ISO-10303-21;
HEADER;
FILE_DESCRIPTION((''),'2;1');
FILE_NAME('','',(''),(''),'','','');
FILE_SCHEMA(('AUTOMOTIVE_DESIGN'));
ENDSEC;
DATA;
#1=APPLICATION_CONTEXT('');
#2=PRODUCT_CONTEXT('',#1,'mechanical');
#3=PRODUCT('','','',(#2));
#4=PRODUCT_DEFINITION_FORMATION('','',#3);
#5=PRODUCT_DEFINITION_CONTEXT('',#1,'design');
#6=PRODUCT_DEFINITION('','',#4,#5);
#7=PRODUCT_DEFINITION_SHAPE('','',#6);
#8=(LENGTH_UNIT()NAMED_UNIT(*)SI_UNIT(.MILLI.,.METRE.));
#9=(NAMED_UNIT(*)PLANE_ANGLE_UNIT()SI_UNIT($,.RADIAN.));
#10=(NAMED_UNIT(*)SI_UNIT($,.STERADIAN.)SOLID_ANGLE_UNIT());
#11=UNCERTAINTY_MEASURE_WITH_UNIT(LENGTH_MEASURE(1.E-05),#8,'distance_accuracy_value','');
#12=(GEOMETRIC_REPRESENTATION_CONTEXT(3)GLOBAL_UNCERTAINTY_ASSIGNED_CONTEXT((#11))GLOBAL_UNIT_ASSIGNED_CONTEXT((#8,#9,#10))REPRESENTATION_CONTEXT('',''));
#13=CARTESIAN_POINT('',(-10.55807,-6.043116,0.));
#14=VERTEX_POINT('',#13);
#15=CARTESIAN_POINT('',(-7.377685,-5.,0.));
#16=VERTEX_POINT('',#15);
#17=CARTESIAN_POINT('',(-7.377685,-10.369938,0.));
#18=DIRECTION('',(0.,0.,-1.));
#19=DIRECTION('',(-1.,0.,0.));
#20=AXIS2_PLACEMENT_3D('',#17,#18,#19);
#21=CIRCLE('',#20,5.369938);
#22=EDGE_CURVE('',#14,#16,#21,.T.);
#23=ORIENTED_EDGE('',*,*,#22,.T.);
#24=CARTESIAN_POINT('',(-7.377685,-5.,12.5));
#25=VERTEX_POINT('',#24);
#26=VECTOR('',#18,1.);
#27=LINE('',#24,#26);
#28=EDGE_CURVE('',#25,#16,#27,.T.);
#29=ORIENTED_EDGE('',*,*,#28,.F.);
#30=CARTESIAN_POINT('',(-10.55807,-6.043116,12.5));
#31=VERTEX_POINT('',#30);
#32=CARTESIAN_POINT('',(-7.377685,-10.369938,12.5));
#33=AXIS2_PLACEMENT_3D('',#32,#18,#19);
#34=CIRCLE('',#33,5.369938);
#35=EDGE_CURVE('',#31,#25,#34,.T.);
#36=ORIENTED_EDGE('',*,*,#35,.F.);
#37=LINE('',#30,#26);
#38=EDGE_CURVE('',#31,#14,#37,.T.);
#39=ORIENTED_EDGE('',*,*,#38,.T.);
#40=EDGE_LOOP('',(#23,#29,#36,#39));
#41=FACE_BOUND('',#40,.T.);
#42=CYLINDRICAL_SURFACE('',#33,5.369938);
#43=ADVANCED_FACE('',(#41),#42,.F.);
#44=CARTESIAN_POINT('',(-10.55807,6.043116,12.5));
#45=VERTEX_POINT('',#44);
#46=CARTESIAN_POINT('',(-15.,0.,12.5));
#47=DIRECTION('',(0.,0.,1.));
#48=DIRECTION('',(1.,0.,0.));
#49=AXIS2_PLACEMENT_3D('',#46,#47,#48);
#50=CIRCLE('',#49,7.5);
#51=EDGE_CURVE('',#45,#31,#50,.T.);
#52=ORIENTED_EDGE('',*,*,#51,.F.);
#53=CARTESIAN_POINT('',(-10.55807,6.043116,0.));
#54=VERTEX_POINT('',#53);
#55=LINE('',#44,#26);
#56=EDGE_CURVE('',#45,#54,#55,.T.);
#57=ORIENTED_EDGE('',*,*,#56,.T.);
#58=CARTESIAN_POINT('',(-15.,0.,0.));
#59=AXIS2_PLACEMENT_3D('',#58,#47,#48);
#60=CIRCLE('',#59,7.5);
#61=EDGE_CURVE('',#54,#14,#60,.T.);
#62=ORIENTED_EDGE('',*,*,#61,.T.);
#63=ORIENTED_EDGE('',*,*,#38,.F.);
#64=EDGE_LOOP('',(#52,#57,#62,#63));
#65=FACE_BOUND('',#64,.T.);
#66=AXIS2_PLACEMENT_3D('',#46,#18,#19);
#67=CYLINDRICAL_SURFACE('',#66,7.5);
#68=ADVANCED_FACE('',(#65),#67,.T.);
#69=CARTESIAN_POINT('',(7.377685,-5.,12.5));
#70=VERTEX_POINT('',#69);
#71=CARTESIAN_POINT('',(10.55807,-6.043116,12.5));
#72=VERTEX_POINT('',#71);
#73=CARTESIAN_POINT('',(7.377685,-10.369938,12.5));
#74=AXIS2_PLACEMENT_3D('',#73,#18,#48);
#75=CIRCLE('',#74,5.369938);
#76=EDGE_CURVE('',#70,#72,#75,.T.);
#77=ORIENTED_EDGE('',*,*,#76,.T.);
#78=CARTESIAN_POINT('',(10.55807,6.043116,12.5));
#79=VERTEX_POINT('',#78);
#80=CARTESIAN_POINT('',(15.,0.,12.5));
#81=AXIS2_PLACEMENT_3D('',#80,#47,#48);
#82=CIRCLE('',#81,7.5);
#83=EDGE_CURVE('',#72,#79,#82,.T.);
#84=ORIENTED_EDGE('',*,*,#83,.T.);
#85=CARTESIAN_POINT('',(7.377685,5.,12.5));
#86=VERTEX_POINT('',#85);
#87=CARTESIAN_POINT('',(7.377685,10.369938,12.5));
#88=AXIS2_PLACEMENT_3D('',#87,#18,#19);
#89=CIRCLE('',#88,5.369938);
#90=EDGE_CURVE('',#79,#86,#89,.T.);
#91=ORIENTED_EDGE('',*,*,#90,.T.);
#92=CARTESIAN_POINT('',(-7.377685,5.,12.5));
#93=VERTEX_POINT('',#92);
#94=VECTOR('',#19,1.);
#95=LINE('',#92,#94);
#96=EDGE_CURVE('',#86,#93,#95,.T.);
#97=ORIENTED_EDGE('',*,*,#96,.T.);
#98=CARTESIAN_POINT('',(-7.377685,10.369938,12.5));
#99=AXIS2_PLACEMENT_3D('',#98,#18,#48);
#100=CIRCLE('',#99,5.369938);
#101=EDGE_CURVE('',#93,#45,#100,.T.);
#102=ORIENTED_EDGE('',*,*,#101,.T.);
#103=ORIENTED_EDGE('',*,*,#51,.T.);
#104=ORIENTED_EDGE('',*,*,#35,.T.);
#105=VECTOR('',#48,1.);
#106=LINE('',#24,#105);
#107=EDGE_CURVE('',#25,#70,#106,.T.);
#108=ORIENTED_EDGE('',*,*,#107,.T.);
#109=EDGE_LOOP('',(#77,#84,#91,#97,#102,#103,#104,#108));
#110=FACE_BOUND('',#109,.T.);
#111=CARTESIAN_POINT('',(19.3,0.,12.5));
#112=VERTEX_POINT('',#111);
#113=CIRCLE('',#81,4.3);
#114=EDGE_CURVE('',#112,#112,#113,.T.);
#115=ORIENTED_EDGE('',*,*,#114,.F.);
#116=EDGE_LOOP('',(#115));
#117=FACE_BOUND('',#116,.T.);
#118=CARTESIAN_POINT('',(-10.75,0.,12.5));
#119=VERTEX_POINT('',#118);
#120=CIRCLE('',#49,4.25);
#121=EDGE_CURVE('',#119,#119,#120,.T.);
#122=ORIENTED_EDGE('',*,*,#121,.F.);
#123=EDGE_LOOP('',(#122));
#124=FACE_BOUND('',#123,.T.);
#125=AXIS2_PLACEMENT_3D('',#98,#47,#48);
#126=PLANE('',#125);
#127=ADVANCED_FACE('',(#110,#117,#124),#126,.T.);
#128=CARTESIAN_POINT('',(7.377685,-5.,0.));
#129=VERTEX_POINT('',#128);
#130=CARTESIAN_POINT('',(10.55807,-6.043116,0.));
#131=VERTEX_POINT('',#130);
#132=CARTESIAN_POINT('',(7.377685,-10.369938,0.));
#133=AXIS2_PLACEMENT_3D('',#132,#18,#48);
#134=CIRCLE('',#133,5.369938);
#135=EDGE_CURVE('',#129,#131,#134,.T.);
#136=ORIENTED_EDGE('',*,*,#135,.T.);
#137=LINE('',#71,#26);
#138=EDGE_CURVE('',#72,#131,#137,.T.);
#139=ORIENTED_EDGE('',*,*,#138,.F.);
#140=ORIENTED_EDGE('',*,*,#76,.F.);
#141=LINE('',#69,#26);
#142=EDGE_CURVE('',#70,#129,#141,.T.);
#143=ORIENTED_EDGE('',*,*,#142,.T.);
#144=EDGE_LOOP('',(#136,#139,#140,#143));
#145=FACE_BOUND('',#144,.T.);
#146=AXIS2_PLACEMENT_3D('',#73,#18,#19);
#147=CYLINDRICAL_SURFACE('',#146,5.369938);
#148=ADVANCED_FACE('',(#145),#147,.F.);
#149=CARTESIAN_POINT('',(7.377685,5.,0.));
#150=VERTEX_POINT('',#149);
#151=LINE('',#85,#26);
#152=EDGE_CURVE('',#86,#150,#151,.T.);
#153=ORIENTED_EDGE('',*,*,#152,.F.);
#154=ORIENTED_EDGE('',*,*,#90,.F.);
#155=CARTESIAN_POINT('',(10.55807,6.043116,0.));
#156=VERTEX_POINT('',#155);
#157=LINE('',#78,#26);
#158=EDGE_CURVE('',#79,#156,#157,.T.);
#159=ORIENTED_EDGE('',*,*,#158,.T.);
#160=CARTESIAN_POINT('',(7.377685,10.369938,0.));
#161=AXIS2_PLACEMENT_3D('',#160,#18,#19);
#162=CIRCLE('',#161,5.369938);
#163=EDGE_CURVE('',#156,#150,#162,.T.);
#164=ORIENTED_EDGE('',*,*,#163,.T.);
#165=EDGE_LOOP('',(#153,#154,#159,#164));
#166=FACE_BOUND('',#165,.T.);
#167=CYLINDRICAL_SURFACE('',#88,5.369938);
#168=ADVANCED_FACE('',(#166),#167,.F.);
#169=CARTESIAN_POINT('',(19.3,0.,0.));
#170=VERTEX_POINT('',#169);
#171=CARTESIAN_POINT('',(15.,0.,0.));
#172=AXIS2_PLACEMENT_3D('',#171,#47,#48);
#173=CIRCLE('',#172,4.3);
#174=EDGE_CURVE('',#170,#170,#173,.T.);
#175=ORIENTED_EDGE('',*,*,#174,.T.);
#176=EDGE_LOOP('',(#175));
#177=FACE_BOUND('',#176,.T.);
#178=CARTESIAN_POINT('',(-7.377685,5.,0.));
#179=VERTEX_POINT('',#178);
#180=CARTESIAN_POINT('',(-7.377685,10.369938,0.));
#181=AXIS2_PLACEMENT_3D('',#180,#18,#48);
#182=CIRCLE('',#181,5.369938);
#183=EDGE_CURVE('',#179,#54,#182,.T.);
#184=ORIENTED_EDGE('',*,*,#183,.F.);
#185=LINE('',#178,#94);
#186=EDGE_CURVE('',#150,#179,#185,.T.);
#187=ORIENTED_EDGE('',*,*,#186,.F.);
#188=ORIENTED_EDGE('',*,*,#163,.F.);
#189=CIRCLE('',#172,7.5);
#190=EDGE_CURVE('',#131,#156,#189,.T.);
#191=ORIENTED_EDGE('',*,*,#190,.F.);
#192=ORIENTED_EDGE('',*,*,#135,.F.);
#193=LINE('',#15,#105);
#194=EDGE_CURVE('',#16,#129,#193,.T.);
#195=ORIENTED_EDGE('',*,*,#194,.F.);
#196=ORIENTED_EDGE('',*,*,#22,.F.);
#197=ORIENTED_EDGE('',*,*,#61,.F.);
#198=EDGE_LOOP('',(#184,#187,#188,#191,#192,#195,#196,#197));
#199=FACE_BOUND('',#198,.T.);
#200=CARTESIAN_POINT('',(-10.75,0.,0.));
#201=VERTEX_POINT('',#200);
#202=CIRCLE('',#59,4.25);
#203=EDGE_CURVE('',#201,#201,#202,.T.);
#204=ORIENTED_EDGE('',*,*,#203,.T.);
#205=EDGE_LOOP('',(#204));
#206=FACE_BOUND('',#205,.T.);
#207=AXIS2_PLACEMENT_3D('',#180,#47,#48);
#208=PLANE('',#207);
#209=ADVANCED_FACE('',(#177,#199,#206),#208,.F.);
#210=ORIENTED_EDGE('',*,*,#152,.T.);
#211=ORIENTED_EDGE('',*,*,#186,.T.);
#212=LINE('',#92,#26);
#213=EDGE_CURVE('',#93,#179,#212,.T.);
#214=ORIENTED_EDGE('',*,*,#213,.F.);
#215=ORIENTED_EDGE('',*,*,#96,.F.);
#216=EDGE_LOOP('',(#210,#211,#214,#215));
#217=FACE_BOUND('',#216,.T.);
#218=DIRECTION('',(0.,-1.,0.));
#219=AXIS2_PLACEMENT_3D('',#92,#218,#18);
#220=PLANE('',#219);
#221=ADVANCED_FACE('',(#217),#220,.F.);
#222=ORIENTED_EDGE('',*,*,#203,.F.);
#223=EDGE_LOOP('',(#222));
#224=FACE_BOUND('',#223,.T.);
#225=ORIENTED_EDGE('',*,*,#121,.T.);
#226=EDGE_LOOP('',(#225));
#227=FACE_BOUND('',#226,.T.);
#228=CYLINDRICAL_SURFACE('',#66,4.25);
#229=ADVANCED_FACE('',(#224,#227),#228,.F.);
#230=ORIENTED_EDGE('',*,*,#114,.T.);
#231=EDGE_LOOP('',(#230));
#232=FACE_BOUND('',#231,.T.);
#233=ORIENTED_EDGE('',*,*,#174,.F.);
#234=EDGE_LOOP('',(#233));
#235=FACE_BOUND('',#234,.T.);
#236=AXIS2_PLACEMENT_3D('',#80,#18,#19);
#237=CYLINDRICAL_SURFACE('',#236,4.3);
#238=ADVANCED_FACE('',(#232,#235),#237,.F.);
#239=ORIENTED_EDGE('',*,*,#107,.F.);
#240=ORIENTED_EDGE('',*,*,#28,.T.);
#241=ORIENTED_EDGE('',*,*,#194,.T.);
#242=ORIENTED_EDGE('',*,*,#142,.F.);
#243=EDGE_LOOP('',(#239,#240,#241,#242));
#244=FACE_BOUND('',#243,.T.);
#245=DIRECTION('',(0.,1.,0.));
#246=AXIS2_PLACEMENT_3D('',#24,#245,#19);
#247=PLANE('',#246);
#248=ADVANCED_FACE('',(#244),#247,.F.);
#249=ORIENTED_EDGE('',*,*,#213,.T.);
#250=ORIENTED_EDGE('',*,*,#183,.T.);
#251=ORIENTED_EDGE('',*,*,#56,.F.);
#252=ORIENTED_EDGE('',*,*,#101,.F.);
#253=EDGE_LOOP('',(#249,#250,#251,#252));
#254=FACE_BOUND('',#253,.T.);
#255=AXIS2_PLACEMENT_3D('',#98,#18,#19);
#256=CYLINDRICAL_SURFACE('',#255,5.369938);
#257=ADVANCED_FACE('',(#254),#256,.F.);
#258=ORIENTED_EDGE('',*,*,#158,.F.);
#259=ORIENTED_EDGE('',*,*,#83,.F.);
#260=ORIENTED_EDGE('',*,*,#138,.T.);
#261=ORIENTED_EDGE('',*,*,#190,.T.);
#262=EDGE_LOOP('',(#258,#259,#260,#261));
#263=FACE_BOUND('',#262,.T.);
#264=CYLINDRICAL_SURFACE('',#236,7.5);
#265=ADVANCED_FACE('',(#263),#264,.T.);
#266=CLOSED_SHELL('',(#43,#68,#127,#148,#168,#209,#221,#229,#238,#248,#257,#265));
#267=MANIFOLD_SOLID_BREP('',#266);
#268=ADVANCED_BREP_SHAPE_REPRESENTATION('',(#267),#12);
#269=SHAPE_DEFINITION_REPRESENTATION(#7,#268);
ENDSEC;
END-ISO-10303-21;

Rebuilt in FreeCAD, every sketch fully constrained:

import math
import FreeCAD as App
import Part
import Sketcher

V = App.Vector
Q = App.Units.Quantity

doc = App.newDocument("Part")
body = doc.addObject("PartDesign::Body", "Body")

# Sketch on XY plane
sketch1 = doc.addObject("Sketcher::SketchObject", "Sketch")
body.addObject(sketch1)
sketch1.AttachmentSupport = (doc.XY_Plane, [""])
sketch1.MapMode = "FlatFace"
sketch1.addGeometry(Part.LineSegment(V(-7.4, -5, 0), V(7.4, -5, 0)), False)
sketch1.addGeometry(Part.ArcOfCircle(Part.Circle(V(7.4, -10.4, 0), V(0, 0, 1), 5.4), math.radians(54), math.radians(90)), False)
sketch1.addGeometry(Part.ArcOfCircle(Part.Circle(V(15, 0, 0), V(0, 0, 1), 7.5), math.radians(-126), math.radians(126)), False)
sketch1.addGeometry(Part.ArcOfCircle(Part.Circle(V(7.4, 10.4, 0), V(0, 0, 1), 5.4), math.radians(-90), math.radians(-54)), False)
sketch1.addGeometry(Part.LineSegment(V(7.4, 5, 0), V(-7.4, 5, 0)), False)
sketch1.addGeometry(Part.ArcOfCircle(Part.Circle(V(-7.4, 10.4, 0), V(0, 0, 1), 5.4), math.radians(-126), math.radians(-90)), False)
sketch1.addGeometry(Part.ArcOfCircle(Part.Circle(V(-15, 0, 0), V(0, 0, 1), 7.5), math.radians(54), math.radians(306)), False)
sketch1.addGeometry(Part.ArcOfCircle(Part.Circle(V(-7.4, -10.4, 0), V(0, 0, 1), 5.4), math.radians(90), math.radians(126)), False)
sketch1.addGeometry(Part.Circle(V(-15, 0, 0), V(0, 0, 1), 4.2), False)
sketch1.addGeometry(Part.Circle(V(15, 0, 0), V(0, 0, 1), 4.3), False)
sketch1.addConstraint(Sketcher.Constraint("Tangent", 0, 2, 1, 2))
sketch1.addConstraint(Sketcher.Constraint("Tangent", 1, 1, 2, 1))
sketch1.addConstraint(Sketcher.Constraint("Tangent", 2, 2, 3, 2))
sketch1.addConstraint(Sketcher.Constraint("Tangent", 3, 1, 4, 1))
sketch1.addConstraint(Sketcher.Constraint("Tangent", 4, 2, 5, 2))
sketch1.addConstraint(Sketcher.Constraint("Tangent", 5, 1, 6, 1))
sketch1.addConstraint(Sketcher.Constraint("Tangent", 6, 2, 7, 2))
sketch1.addConstraint(Sketcher.Constraint("Tangent", 7, 1, 0, 1))
sketch1.addConstraint(Sketcher.Constraint("Horizontal", 0))
sketch1.addConstraint(Sketcher.Constraint("Horizontal", 4))
sketch1.addConstraint(Sketcher.Constraint("Coincident", 8, 3, 6, 3))
sketch1.addConstraint(Sketcher.Constraint("Coincident", 9, 3, 2, 3))
sketch1.addConstraint(Sketcher.Constraint("Equal", 1, 3))
sketch1.addConstraint(Sketcher.Constraint("Equal", 3, 5))
sketch1.addConstraint(Sketcher.Constraint("Equal", 2, 6))
sketch1.addConstraint(Sketcher.Constraint("Equal", 5, 7))
sketch1.addConstraint(Sketcher.Constraint("Symmetric", 1, 3, 5, 3, -1, 1))
sketch1.addConstraint(Sketcher.Constraint("Symmetric", 2, 3, 6, 3, -2))
sketch1.addConstraint(Sketcher.Constraint("Diameter", 8, Q("8.5 mm")))
sketch1.addConstraint(Sketcher.Constraint("Diameter", 9, Q("8.6 mm")))
sketch1.addConstraint(Sketcher.Constraint("Radius", 2, Q("7.5 mm")))
sketch1.addConstraint(Sketcher.Constraint("DistanceX", -1, 1, 2, 3, Q("15 mm")))
sketch1.addConstraint(Sketcher.Constraint("DistanceY", 0, 2, -1, 1, Q("5 mm")))
sketch1.addConstraint(Sketcher.Constraint("Radius", 1, Q("5.369938 mm")))
pad1 = doc.addObject("PartDesign::Pad", "Pad")
body.addObject(pad1)
pad1.Profile = sketch1
pad1.Length = 12.5

doc.recompute()
